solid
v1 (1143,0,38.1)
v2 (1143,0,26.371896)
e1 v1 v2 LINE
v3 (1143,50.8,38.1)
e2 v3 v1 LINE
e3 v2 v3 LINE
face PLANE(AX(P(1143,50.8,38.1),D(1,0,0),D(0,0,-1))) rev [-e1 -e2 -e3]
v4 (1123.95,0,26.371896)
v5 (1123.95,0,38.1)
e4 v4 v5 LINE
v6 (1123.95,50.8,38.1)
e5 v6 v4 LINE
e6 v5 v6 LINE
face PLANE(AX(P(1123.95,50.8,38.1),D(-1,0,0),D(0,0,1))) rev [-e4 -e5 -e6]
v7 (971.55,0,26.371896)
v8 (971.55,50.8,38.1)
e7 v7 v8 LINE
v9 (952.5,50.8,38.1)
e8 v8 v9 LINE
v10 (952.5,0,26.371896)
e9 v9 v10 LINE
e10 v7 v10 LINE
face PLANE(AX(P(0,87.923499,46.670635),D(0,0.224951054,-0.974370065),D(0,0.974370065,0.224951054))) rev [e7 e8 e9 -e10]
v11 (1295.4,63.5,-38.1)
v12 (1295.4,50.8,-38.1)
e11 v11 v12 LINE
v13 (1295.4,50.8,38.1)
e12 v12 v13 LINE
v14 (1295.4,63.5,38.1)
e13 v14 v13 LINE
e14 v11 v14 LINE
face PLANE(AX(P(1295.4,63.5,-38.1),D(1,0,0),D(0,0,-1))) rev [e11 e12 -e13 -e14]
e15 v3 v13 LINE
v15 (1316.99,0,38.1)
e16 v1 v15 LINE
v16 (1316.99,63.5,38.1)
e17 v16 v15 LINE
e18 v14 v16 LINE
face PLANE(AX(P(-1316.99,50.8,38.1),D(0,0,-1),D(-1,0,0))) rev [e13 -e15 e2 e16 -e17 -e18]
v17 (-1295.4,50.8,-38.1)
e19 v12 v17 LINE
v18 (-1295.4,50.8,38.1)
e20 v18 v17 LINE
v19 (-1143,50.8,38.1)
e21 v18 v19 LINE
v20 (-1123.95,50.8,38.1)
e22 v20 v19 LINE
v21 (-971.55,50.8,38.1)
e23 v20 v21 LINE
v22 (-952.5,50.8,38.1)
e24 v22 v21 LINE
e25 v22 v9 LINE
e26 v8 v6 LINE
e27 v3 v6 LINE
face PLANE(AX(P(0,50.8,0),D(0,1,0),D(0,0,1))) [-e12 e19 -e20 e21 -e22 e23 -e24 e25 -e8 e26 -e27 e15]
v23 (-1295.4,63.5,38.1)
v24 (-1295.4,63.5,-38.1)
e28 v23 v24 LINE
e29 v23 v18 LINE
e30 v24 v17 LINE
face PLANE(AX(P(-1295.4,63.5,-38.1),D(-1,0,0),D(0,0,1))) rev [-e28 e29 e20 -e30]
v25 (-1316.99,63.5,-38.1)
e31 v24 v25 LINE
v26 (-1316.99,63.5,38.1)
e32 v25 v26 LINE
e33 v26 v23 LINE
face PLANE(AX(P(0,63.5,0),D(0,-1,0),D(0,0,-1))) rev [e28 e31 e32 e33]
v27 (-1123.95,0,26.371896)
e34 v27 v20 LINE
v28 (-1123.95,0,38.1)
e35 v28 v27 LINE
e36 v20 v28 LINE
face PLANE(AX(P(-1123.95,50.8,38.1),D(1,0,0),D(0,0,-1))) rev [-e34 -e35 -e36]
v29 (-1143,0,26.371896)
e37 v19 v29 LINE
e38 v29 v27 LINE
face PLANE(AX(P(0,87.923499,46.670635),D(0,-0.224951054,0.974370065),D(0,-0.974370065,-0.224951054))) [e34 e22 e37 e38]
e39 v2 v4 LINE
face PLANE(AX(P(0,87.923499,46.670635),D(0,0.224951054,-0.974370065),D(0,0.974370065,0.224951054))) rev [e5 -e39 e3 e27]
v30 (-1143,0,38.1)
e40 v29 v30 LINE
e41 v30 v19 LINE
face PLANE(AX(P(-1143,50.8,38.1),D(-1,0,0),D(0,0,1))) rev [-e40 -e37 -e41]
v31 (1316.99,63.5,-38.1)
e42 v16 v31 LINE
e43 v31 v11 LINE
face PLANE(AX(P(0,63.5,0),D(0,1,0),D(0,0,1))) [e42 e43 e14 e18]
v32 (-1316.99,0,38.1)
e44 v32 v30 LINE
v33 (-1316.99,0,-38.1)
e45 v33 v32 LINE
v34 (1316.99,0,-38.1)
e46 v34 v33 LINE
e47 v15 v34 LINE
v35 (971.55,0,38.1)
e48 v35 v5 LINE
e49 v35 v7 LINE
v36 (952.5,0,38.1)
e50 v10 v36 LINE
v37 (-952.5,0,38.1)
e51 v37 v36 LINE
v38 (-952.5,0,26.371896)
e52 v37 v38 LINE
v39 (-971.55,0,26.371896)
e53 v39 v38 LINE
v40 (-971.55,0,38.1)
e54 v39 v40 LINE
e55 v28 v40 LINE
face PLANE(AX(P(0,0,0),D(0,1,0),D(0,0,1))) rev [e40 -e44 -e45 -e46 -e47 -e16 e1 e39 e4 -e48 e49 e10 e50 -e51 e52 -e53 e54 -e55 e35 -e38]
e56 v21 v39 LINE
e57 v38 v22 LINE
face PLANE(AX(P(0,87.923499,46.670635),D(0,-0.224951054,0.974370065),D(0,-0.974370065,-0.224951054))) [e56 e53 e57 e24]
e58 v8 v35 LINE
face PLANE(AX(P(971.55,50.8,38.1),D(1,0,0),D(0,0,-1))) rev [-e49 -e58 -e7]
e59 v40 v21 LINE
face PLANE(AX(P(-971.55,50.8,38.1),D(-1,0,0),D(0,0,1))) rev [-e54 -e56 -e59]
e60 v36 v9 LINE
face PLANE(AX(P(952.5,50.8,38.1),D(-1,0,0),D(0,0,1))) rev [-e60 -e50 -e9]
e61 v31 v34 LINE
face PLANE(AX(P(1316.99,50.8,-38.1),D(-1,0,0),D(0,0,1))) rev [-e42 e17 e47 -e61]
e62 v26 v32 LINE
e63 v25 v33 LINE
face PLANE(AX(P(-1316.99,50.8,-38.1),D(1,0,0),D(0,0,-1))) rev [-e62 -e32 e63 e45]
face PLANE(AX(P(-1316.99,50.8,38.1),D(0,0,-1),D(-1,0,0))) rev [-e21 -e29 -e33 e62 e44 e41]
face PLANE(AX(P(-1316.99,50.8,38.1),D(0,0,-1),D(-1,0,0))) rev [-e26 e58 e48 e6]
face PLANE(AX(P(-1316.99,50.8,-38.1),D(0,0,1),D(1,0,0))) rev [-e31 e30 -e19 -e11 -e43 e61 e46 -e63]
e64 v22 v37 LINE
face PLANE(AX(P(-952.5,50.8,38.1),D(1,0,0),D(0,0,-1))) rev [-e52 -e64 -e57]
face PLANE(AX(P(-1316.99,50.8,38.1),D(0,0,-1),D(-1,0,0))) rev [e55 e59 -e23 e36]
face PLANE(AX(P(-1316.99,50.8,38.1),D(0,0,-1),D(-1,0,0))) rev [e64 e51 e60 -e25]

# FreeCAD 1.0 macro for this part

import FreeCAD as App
import Part
import Sketcher
Q = App.Units.Quantity


def add_polygon(sketch, points):
    """Adds a closed chain of lines whose ends are joined by coincident constraints."""
    first, n = sketch.GeometryCount, len(points)
    for a, b in zip(points, points[1:] + points[:1]):
        sketch.addGeometry(Part.LineSegment(App.Vector(*a, 0), App.Vector(*b, 0)), False)
    for i in range(n):
        sketch.addConstraint(Sketcher.Constraint("Coincident", first + i, 2, first + (i + 1) % n, 1))

doc = App.newDocument("Part")
body = doc.addObject("PartDesign::Body", "Body")

# Sketch on XZ plane
sketch1 = body.newObject("Sketcher::SketchObject", "Sketch")
sketch1.AttachmentSupport = (doc.getObject("XZ_Plane"), [""])
sketch1.MapMode = "FlatFace"
add_polygon(sketch1, [(-1317, -38), (-1317, 38), (1317, 38), (1317, -38)])  # lines 0-3
sketch1.addConstraint(Sketcher.Constraint("Vertical", 0))
sketch1.addConstraint(Sketcher.Constraint("Horizontal", 1))
sketch1.addConstraint(Sketcher.Constraint("Vertical", 2))
sketch1.addConstraint(Sketcher.Constraint("Horizontal", 3))
sketch1.addConstraint(Sketcher.Constraint("Symmetric", 0, 2, 2, 2, -1, 1))
sketch1.addConstraint(Sketcher.Constraint("DistanceY", 0, 1, 0, 2, Q("3 in")))
sketch1.addConstraint(Sketcher.Constraint("DistanceX", 1, 1, 1, 2, Q("103.7 in")))
pad1 = body.newObject("PartDesign::Pad", "Pad")
pad1.Profile = sketch1
pad1.Length = Q("2 in")
pad1.Reversed = True

# Sketch on XZ plane
sketch2 = body.newObject("Sketcher::SketchObject", "Sketch001")
sketch2.AttachmentSupport = (doc.getObject("XZ_Plane"), [""])
sketch2.MapMode = "FlatFace"
sketch2.AttachmentOffset = App.Placement(App.Vector(0, 0, -2 * 25.4), App.Rotation())
add_polygon(sketch2, [(-972, 38), (-972, 102), (-952, 102), (-952, 38)])  # lines 0-3
add_polygon(sketch2, [(-1143, 38), (-1143, 102), (-1124, 102), (-1124, 38)])  # lines 4-7
add_polygon(sketch2, [(952, 38), (952, 102), (972, 102), (972, 38)])  # lines 8-11
add_polygon(sketch2, [(1124, 38), (1124, 102), (1143, 102), (1143, 38)])  # lines 12-15
sketch2.addGeometry(Part.LineSegment(App.Vector(-1143, 38, 0), App.Vector(1143, 38, 0)), True)  # axis
sketch2.addConstraint(Sketcher.Constraint("Vertical", 0))
sketch2.addConstraint(Sketcher.Constraint("Horizontal", 1))
sketch2.addConstraint(Sketcher.Constraint("Vertical", 2))
sketch2.addConstraint(Sketcher.Constraint("Horizontal", 3))
sketch2.addConstraint(Sketcher.Constraint("Vertical", 4))
sketch2.addConstraint(Sketcher.Constraint("Horizontal", 5))
sketch2.addConstraint(Sketcher.Constraint("Vertical", 6))
sketch2.addConstraint(Sketcher.Constraint("Horizontal", 7))
sketch2.addConstraint(Sketcher.Constraint("Vertical", 8))
sketch2.addConstraint(Sketcher.Constraint("Horizontal", 9))
sketch2.addConstraint(Sketcher.Constraint("Vertical", 10))
sketch2.addConstraint(Sketcher.Constraint("Horizontal", 11))
sketch2.addConstraint(Sketcher.Constraint("Vertical", 12))
sketch2.addConstraint(Sketcher.Constraint("Horizontal", 13))
sketch2.addConstraint(Sketcher.Constraint("Vertical", 14))
sketch2.addConstraint(Sketcher.Constraint("Horizontal", 15))
sketch2.addConstraint(Sketcher.Constraint("Horizontal", 16))
sketch2.addConstraint(Sketcher.Constraint("Coincident", 16, 1, 7, 2))
sketch2.addConstraint(Sketcher.Constraint("Coincident", 16, 2, 14, 2))
sketch2.addConstraint(Sketcher.Constraint("Symmetric", 1, 2, 8, 2, -2))
sketch2.addConstraint(Sketcher.Constraint("Symmetric", 3, 2, 10, 2, -2))
sketch2.addConstraint(Sketcher.Constraint("Symmetric", 5, 2, 12, 2, -2))
sketch2.addConstraint(Sketcher.Constraint("Horizontal", 1, 2, 4, 2))
sketch2.addConstraint(Sketcher.Constraint("Horizontal", 3, 2, 6, 2))
sketch2.addConstraint(Sketcher.Constraint("Equal", 3, 5))
sketch2.addConstraint(Sketcher.Constraint("Equal", 11, 13))
sketch2.addConstraint(Sketcher.Constraint("DistanceX", 16, 1, 16, 2, Q("90 in")))
sketch2.addConstraint(Sketcher.Constraint("DistanceY", 0, 1, 0, 2, Q("2.5 in")))
sketch2.addConstraint(Sketcher.Constraint("DistanceY", -1, 1, 0, 2, Q("4 in")))
sketch2.addConstraint(Sketcher.Constraint("DistanceX", 5, 2, 0, 2, Q("6 in")))
sketch2.addConstraint(Sketcher.Constraint("DistanceX", 1, 2, 8, 2, Q("75 in")))
groove = body.newObject("PartDesign::Groove", "Groove")
groove.Profile = sketch2
groove.ReferenceAxis = (sketch2, ["Axis0"])
groove.Angle = 103

# Sketch on XZ plane
sketch3 = body.newObject("Sketcher::SketchObject", "Sketch002")
sketch3.AttachmentSupport = (doc.getObject("XZ_Plane"), [""])
sketch3.MapMode = "FlatFace"
sketch3.AttachmentOffset = App.Placement(App.Vector(0, 0, -2 * 25.4), App.Rotation())
add_polygon(sketch3, [(-1317, -38), (-1317, 38), (-1295, 38), (-1295, -38)])  # lines 0-3
add_polygon(sketch3, [(1295, -38), (1295, 38), (1317, 38), (1317, -38)])  # lines 4-7
sketch3.addConstraint(Sketcher.Constraint("Vertical", 0))
sketch3.addConstraint(Sketcher.Constraint("Horizontal", 1))
sketch3.addConstraint(Sketcher.Constraint("Vertical", 2))
sketch3.addConstraint(Sketcher.Constraint("Horizontal", 3))
sketch3.addConstraint(Sketcher.Constraint("Vertical", 4))
sketch3.addConstraint(Sketcher.Constraint("Horizontal", 5))
sketch3.addConstraint(Sketcher.Constraint("Vertical", 6))
sketch3.addConstraint(Sketcher.Constraint("Horizontal", 7))
sketch3.addConstraint(Sketcher.Constraint("Symmetric", 2, 2, 4, 2, -1, 1))
sketch3.addConstraint(Sketcher.Constraint("Symmetric", 0, 2, 6, 2, -1, 1))
sketch3.addConstraint(Sketcher.Constraint("Horizontal", 1, 2, 4, 2))
sketch3.addConstraint(Sketcher.Constraint("DistanceY", 0, 1, 0, 2, Q("3 in")))
sketch3.addConstraint(Sketcher.Constraint("DistanceX", 1, 2, -1, 1, Q("51 in")))
sketch3.addConstraint(Sketcher.Constraint("DistanceX", 1, 1, 1, 2, Q("0.85 in")))
pad2 = body.newObject("PartDesign::Pad", "Pad001")
pad2.Profile = sketch3
pad2.Length = Q("0.5 in")
pad2.Reversed = True

doc.recompute()
